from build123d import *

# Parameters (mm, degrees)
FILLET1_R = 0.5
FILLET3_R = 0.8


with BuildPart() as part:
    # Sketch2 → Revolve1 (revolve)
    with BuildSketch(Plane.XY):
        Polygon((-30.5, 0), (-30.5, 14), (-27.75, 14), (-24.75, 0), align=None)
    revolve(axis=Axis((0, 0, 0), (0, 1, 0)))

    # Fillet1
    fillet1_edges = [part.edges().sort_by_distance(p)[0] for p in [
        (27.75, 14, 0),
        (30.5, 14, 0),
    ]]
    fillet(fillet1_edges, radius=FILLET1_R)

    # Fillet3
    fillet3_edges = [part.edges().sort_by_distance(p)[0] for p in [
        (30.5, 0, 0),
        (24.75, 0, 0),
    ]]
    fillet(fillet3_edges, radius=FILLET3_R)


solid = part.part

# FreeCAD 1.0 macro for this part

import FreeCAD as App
import Part
import Sketcher
Q = App.Units.Quantity


def edges_at(feature, points):
    """Names of the edges that pass closest to the given points."""
    edges = feature.Shape.Edges
    near = lambda p: min(range(len(edges)), key=lambda i: edges[i].distToShape(Part.Vertex(*p))[0])
    return sorted({f"Edge{near(p) + 1}" for p in points})


def add_polygon(sketch, points):
    """Adds a closed chain of lines whose ends are joined by coincident constraints."""
    first, n = sketch.GeometryCount, len(points)
    for a, b in zip(points, points[1:] + points[:1]):
        sketch.addGeometry(Part.LineSegment(App.Vector(*a, 0), App.Vector(*b, 0)), False)
    for i in range(n):
        sketch.addConstraint(Sketcher.Constraint("Coincident", first + i, 2, first + (i + 1) % n, 1))

doc = App.newDocument("Part")
params = doc.addObject("Spreadsheet::Sheet", "Params")
for row, (alias, value) in enumerate([
    ("sketch1_height", "14 mm"),
    ("sketch1_width", "5.75 mm"),
    ("revolution_angle", "360 deg"),
    ("fillet_radius", "0.5 mm"),
    ("fillet2_radius", "0.8 mm"),
], start=1):
    params.set(f"A{row}", alias)
    params.set(f"B{row}", "=" + value)
    params.setAlias(f"B{row}", alias)

body = doc.addObject("PartDesign::Body", "Body")

# Sketch on XY plane
sketch1 = body.newObject("Sketcher::SketchObject", "Sketch")
sketch1.AttachmentSupport = (doc.getObject("XY_Plane"), [""])
sketch1.MapMode = "FlatFace"
add_polygon(sketch1, [(-30.5, 14), (-30.5, 0), (-24.8, 0), (-27.8, 14)])  # lines 0-3
sketch1.addConstraint(Sketcher.Constraint("Vertical", 0))
sketch1.addConstraint(Sketcher.Constraint("Horizontal", 1))
sketch1.addConstraint(Sketcher.Constraint("Horizontal", 3))
sketch1.addConstraint(Sketcher.Constraint("PointOnObject", 0, 2, -1))
sketch1.addConstraint(Sketcher.Constraint("DistanceY", 0, 2, 0, 1, Q("14 mm")))
sketch1.addConstraint(Sketcher.Constraint("DistanceX", 2, 2, 1, 2, Q("3 mm")))
sketch1.addConstraint(Sketcher.Constraint("DistanceX", 1, 1, 1, 2, Q("5.75 mm")))
sketch1.addConstraint(Sketcher.Constraint("DistanceX", 0, 2, -1, 1, Q("30.5 mm")))
sketch1.setExpression("Constraints[8]", "Params.sketch1_height")
sketch1.setExpression("Constraints[10]", "Params.sketch1_width")
revolution = body.newObject("PartDesign::Revolution", "Revolution")
revolution.Profile = sketch1
revolution.ReferenceAxis = (sketch1, ["V_Axis"])
revolution.setExpression("Angle", "Params.revolution_angle")
doc.recompute()

fillet = body.newObject("PartDesign::Fillet", "Fillet")
fillet.Base = (revolution, edges_at(revolution, [(27.75, 14, 0), (30.5, 14, 0)]))
fillet.setExpression("Radius", "Params.fillet_radius")
doc.recompute()

fillet2 = body.newObject("PartDesign::Fillet", "Fillet001")
fillet2.Base = (fillet, edges_at(fillet, [(30.5, 0, 0), (24.75, 0, 0)]))
fillet2.setExpression("Radius", "Params.fillet2_radius")

doc.recompute()
